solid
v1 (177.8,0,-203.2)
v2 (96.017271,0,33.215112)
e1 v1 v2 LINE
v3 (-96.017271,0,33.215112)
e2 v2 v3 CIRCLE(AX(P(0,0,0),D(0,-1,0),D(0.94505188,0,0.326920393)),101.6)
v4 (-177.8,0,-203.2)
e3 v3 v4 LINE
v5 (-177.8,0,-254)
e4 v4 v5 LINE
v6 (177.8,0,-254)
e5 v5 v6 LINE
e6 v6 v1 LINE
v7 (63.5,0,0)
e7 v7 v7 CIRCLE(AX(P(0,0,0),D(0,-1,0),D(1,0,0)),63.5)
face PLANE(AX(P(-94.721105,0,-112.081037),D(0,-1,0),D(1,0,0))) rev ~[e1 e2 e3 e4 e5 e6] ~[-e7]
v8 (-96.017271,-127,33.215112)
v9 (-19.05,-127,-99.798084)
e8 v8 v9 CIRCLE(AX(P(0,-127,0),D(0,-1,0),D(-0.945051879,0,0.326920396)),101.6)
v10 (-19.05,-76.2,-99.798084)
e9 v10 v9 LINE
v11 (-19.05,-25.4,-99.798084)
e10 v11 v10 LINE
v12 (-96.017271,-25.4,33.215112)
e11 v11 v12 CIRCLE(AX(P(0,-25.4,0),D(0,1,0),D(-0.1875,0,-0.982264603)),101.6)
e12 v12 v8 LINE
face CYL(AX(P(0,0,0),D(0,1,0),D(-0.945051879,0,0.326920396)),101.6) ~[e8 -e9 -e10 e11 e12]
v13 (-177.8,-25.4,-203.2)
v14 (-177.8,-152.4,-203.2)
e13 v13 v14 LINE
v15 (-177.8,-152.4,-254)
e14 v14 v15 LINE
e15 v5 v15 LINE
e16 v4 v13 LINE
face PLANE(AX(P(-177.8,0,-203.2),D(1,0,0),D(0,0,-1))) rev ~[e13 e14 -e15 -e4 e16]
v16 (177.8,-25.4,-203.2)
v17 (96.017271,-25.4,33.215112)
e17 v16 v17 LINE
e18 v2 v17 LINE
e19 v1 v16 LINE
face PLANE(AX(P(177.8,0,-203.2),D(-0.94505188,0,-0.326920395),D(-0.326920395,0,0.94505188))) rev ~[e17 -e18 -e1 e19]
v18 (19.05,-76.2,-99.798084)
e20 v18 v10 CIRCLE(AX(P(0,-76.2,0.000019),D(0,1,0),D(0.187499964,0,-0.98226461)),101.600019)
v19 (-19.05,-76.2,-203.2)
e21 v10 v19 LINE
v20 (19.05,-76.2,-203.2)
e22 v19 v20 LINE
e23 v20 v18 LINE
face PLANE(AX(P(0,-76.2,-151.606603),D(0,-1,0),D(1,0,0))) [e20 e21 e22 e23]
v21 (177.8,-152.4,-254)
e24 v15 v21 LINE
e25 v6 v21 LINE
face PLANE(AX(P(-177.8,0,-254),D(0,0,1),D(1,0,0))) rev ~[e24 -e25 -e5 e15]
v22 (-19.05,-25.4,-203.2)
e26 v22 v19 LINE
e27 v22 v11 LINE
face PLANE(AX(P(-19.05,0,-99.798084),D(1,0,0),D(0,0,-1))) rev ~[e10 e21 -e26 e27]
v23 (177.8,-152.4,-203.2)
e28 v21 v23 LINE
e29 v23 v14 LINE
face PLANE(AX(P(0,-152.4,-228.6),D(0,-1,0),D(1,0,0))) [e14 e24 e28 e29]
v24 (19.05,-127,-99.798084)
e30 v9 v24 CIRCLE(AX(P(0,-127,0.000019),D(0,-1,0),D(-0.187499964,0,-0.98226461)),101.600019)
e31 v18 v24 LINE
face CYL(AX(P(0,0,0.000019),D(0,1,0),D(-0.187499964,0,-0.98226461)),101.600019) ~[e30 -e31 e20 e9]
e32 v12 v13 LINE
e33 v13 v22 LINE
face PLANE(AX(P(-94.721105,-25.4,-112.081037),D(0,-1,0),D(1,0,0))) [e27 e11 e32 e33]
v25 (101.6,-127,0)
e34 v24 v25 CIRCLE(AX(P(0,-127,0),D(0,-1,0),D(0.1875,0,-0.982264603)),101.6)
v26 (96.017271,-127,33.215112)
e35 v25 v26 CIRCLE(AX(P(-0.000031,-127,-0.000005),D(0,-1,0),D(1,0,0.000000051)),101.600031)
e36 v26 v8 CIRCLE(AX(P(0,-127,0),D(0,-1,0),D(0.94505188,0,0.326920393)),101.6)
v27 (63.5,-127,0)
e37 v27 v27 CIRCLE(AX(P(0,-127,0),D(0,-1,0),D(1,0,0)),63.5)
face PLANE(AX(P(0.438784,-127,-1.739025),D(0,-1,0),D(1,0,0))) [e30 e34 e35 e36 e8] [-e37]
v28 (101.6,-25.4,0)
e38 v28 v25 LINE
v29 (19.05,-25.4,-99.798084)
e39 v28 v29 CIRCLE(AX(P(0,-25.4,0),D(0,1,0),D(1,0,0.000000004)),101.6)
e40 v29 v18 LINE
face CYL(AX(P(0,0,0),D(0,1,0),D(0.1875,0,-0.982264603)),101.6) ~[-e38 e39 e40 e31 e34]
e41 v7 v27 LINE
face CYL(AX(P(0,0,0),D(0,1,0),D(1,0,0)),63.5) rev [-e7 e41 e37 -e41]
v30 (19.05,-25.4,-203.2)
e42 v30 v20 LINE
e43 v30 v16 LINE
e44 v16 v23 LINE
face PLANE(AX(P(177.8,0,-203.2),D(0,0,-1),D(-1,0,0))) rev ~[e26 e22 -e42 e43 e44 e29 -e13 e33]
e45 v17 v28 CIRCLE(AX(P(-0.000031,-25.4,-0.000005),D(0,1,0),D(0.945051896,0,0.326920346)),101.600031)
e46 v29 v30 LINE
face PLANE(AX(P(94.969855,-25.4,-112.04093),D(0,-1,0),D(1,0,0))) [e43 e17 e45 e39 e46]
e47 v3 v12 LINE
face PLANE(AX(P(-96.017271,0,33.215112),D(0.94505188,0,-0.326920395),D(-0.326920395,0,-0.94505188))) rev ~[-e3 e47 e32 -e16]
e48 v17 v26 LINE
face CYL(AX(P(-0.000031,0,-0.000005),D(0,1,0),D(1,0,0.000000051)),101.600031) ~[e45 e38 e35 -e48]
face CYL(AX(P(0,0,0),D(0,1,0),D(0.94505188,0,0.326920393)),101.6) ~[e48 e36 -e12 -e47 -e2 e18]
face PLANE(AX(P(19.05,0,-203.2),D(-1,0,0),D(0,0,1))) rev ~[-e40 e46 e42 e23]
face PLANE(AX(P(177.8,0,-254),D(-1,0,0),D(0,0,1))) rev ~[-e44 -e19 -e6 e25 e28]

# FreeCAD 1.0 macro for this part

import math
import FreeCAD as App
import Part
import Sketcher
from FreeCAD import Vector
Q = App.Units.Quantity

doc = App.newDocument("Part")
body = doc.addObject("PartDesign::Body", "Body")

# Sketch on XZ plane
sketch1 = body.newObject("Sketcher::SketchObject", "Sketch")
sketch1.AttachmentSupport = (doc.getObject("XZ_Plane"), [""])
sketch1.MapMode = "FlatFace"
sketch1.addGeometry([
    Part.ArcOfCircle(Part.Circle(Vector(0, 0, 0), Vector(0, 0, 1), 101.6), math.radians(-79.193077), math.radians(0)),  # 0
    Part.ArcOfCircle(Part.Circle(Vector(-0.000031, -0.000005, 0), Vector(0, 0, 1), 101.600031), math.radians(0.000003), math.radians(19.081959)),  # 1
    Part.ArcOfCircle(Part.Circle(Vector(0, 0, 0), Vector(0, 0, 1), 101.6), math.radians(19.081962), math.radians(160.918038)),  # 2
    Part.ArcOfCircle(Part.Circle(Vector(0, 0, 0), Vector(0, 0, 1), 101.6), math.radians(160.918038), math.radians(259.193077)),  # 3
    Part.ArcOfCircle(Part.Circle(Vector(0, 0.000019, 0), Vector(0, 0, 1), 101.600019), math.radians(-100.806921), math.radians(-79.193079)),  # 4
    Part.Circle(Vector(0, 0, 0), Vector(0, 0, 1), 63.5),  # 5
], False)
sketch1.addConstraint([
    Sketcher.Constraint("Coincident", 0, 2, 1, 1),
    Sketcher.Constraint("Coincident", 1, 2, 2, 1),
    Sketcher.Constraint("Coincident", 2, 2, 3, 1),
    Sketcher.Constraint("Coincident", 3, 2, 4, 1),
    Sketcher.Constraint("Coincident", 4, 2, 0, 1),
    Sketcher.Constraint("Coincident", 0, 3, -1, 1),
    Sketcher.Constraint("Coincident", 2, 3, -1, 1),
    Sketcher.Constraint("Coincident", 3, 3, -1, 1),
    Sketcher.Constraint("Coincident", 5, 3, -1, 1),
    Sketcher.Constraint("PointOnObject", 4, 3, -2),
    Sketcher.Constraint("PointOnObject", 0, 2, -1),
    Sketcher.Constraint("Diameter", 5, Q("5 in")),
    Sketcher.Constraint("Radius", 0, Q("4 in")),
    Sketcher.Constraint("DistanceX", 3, 2, 4, 2, Q("1.5 in")),
    Sketcher.Constraint("DistanceX", 3, 2, -1, 1, Q("0.75 in")),
    Sketcher.Constraint("Radius", 1, 101.600031),
    Sketcher.Constraint("Radius", 4, 101.600019),
    Sketcher.Constraint("DistanceX", -1, 1, 1, 2, 96.017271),
    Sketcher.Constraint("DistanceX", 2, 2, -1, 1, 96.017271),
])
pad1 = body.newObject("PartDesign::Pad", "Pad")
pad1.Profile = sketch1
pad1.Length = Q("5 in")
body2 = doc.addObject("PartDesign::Body", "Body001")

# Sketch on XZ plane
sketch2 = body2.newObject("Sketcher::SketchObject", "Sketch001")
sketch2.AttachmentSupport = (doc.getObject("XZ_Plane001"), [""])
sketch2.MapMode = "FlatFace"
sketch2.addGeometry([
    Part.LineSegment(Vector(177.8, -254, 0), Vector(177.8, -203.2, 0)),
    Part.LineSegment(Vector(177.8, -203.2, 0), Vector(-177.8, -203.2, 0)),
    Part.LineSegment(Vector(-177.8, -203.2, 0), Vector(-177.8, -254, 0)),
    Part.LineSegment(Vector(-177.8, -254, 0), Vector(177.8, -254, 0)),
], False)
sketch2.addConstraint([
    Sketcher.Constraint("Coincident", 0, 2, 1, 1),
    Sketcher.Constraint("Coincident", 1, 2, 2, 1),
    Sketcher.Constraint("Coincident", 2, 2, 3, 1),
    Sketcher.Constraint("Coincident", 3, 2, 0, 1),
    Sketcher.Constraint("Vertical", 0),
    Sketcher.Constraint("Horizontal", 1),
    Sketcher.Constraint("Vertical", 2),
    Sketcher.Constraint("Horizontal", 3),
    Sketcher.Constraint("DistanceX", 1, 2, 1, 1, Q("14 in")),
    Sketcher.Constraint("DistanceY", 0, 1, 0, 2, Q("2 in")),
    Sketcher.Constraint("DistanceX", -1, 1, 0, 2, Q("7 in")),
    Sketcher.Constraint("DistanceY", 0, 2, -1, 1, Q("8 in")),
])
pad2 = body2.newObject("PartDesign::Pad", "Pad001")
pad2.Profile = sketch2
pad2.Length = Q("6 in")
body.AllowCompound = True
doc.recompute()

boolean = body.newObject("PartDesign::Boolean", "Boolean")
boolean.Type = "Fuse"
boolean.addObjects([body2])

# Sketch on XZ plane
sketch3 = body.newObject("Sketcher::SketchObject", "Sketch002")
sketch3.AttachmentSupport = (doc.getObject("XZ_Plane"), [""])
sketch3.MapMode = "FlatFace"
sketch3.addGeometry([
    Part.LineSegment(Vector(19.05, -203.2, 0), Vector(19.05, -99.798084, 0)),
    Part.ArcOfCircle(Part.Circle(Vector(0, 0.000019, 0), Vector(0, 0, 1), 101.600019), math.radians(-100.806921), math.radians(-79.193079)),
    Part.LineSegment(Vector(-19.05, -99.798084, 0), Vector(-19.05, -203.2, 0)),
    Part.LineSegment(Vector(-19.05, -203.2, 0), Vector(19.05, -203.2, 0)),
], False)
sketch3.addConstraint([
    Sketcher.Constraint("Coincident", 0, 2, 1, 2),
    Sketcher.Constraint("Coincident", 1, 1, 2, 1),
    Sketcher.Constraint("Coincident", 2, 2, 3, 1),
    Sketcher.Constraint("Coincident", 3, 2, 0, 1),
    Sketcher.Constraint("Vertical", 0),
    Sketcher.Constraint("Vertical", 2),
    Sketcher.Constraint("Horizontal", 3),
    Sketcher.Constraint("Symmetric", 0, 2, 1, 1, -2),
    Sketcher.Constraint("DistanceX", 3, 1, 3, 2, Q("1.5 in")),
    Sketcher.Constraint("DistanceY", 2, 2, -1, 1, Q("8 in")),
    Sketcher.Constraint("Radius", 1, 101.600019),
    Sketcher.Constraint("DistanceY", 0, 1, 0, 2, 103.401916),
])
pad3 = body.newObject("PartDesign::Pad", "Pad002")
pad3.Profile = sketch3
pad3.Length = Q("3 in")

# Sketch on XZ plane
sketch4 = body.newObject("Sketcher::SketchObject", "Sketch003")
sketch4.AttachmentSupport = (doc.getObject("XZ_Plane"), [""])
sketch4.MapMode = "FlatFace"
sketch4.addGeometry([
    Part.ArcOfCircle(Part.Circle(Vector(0, 0, 0), Vector(0, 0, 1), 101.6), math.radians(160.918038), math.radians(259.193077)),  # 0
    Part.LineSegment(Vector(-96.017271, 33.215112, 0), Vector(-177.8, -203.2, 0)),  # 1
    Part.LineSegment(Vector(-177.8, -203.2, 0), Vector(-19.05, -203.2, 0)),  # 2
    Part.LineSegment(Vector(-19.05, -203.2, 0), Vector(-19.05, -99.798084, 0)),  # 3
    Part.ArcOfCircle(Part.Circle(Vector(-0.000031, -0.000005, 0), Vector(0, 0, 1), 101.600031), math.radians(0.000003), math.radians(19.081959)),  # 4
    Part.ArcOfCircle(Part.Circle(Vector(0, 0, 0), Vector(0, 0, 1), 101.6), math.radians(-79.193077), math.radians(0)),  # 5
    Part.LineSegment(Vector(19.05, -99.798084, 0), Vector(19.05, -203.2, 0)),  # 6
    Part.LineSegment(Vector(19.05, -203.2, 0), Vector(177.8, -203.2, 0)),  # 7
    Part.LineSegment(Vector(177.8, -203.2, 0), Vector(96.017271, 33.215112, 0)),  # 8
], False)
sketch4.addConstraint([
    Sketcher.Constraint("Coincident", 0, 1, 1, 1),
    Sketcher.Constraint("Coincident", 1, 2, 2, 1),
    Sketcher.Constraint("Coincident", 2, 2, 3, 1),
    Sketcher.Constraint("Coincident", 3, 2, 0, 2),
    Sketcher.Constraint("Coincident", 4, 1, 5, 2),
    Sketcher.Constraint("Coincident", 5, 1, 6, 1),
    Sketcher.Constraint("Coincident", 6, 2, 7, 1),
    Sketcher.Constraint("Coincident", 7, 2, 8, 1),
    Sketcher.Constraint("Coincident", 8, 2, 4, 2),
    Sketcher.Constraint("Horizontal", 2),
    Sketcher.Constraint("Vertical", 3),
    Sketcher.Constraint("Vertical", 6),
    Sketcher.Constraint("Horizontal", 7),
    Sketcher.Constraint("Coincident", 0, 3, -1, 1),
    Sketcher.Constraint("Coincident", 5, 3, -1, 1),
    Sketcher.Constraint("PointOnObject", 4, 1, -1),
    Sketcher.Constraint("Radius", 0, Q("4 in")),
    Sketcher.Constraint("Radius", 5, Q("4 in")),
    Sketcher.Constraint("DistanceX", 1, 2, -1, 1, Q("7 in")),
    Sketcher.Constraint("DistanceY", 1, 2, -1, 1, Q("8 in")),
    Sketcher.Constraint("DistanceY", 6, 2, -1, 1, Q("8 in")),
    Sketcher.Constraint("DistanceX", -1, 1, 7, 2, Q("7 in")),
    Sketcher.Constraint("DistanceX", 2, 1, 2, 2, Q("6.25 in")),
    Sketcher.Constraint("DistanceX", 7, 1, 7, 2, Q("6.25 in")),
    Sketcher.Constraint("Radius", 4, 101.600031),
    Sketcher.Constraint("DistanceX", 4, 3, 8, 2, 96.017302),
    Sketcher.Constraint("Distance", 1, 250.160988),
    Sketcher.Constraint("Distance", 8, 250.160988),
])
pad4 = body.newObject("PartDesign::Pad", "Pad003")
pad4.Profile = sketch4
pad4.Length = Q("1 in")

doc.recompute()
